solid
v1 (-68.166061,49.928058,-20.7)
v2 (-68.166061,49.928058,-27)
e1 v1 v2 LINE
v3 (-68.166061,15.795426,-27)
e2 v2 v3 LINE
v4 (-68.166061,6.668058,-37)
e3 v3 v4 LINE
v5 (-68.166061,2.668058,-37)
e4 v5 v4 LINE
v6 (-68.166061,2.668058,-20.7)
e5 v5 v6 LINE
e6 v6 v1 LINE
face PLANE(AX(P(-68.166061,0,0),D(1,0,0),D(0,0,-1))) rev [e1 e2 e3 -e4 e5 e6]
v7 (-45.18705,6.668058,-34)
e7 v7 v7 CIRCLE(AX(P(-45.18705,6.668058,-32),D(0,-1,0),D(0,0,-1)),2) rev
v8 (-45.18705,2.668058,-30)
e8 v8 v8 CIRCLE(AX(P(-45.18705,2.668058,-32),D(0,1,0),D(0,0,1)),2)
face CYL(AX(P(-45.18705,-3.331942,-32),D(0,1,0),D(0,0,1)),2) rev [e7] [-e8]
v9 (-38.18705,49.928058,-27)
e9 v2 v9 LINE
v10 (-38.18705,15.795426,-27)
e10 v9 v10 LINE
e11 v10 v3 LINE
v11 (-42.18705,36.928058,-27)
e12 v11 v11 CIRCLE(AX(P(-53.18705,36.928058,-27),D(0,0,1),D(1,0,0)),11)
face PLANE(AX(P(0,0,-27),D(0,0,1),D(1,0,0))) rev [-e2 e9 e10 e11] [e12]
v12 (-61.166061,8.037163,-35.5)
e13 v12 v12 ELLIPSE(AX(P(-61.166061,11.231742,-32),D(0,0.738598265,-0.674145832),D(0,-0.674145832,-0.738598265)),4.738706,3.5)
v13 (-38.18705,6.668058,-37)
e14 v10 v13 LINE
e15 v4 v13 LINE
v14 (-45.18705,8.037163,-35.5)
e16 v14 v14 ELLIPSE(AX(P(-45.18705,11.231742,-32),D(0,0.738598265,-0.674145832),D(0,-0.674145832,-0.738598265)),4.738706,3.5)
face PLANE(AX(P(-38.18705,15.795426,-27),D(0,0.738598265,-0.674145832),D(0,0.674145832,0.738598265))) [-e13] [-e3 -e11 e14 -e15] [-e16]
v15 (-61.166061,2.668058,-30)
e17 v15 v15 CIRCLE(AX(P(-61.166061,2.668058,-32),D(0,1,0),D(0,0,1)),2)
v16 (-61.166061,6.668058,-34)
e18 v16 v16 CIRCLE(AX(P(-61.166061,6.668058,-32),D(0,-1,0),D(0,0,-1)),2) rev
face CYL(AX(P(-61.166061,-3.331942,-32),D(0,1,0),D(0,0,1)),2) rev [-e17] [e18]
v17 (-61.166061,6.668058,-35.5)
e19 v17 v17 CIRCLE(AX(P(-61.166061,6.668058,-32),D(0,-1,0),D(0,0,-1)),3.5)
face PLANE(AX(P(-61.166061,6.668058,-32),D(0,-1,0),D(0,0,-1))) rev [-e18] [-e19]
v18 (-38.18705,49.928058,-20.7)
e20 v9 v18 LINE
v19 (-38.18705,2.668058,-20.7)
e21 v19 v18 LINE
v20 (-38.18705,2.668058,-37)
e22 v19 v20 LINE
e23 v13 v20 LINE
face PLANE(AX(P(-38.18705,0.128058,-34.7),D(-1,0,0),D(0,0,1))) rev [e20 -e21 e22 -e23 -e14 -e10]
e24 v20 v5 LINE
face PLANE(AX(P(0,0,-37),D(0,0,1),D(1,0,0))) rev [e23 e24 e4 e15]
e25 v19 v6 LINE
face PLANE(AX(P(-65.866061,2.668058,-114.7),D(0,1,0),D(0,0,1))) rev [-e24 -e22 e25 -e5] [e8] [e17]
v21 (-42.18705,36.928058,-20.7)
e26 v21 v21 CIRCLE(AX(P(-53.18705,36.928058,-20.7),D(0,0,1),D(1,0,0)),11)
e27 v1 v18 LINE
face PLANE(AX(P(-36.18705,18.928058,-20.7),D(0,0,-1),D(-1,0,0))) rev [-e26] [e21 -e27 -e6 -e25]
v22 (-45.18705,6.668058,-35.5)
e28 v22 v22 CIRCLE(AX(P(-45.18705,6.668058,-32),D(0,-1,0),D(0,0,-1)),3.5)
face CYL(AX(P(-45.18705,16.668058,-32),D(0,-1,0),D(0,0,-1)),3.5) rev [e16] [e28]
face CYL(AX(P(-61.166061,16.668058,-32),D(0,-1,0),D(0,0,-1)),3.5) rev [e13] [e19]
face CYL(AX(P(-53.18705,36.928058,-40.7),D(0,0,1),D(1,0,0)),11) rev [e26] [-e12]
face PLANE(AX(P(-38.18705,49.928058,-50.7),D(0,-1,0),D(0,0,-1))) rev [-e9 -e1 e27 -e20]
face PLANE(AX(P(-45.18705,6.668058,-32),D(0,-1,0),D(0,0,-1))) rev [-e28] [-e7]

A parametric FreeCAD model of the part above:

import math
import FreeCAD as App
import Part
import Sketcher

V = App.Vector
Q = App.Units.Quantity

doc = App.newDocument("Part")
body = doc.addObject("PartDesign::Body", "Body")

sketch1 = body.newObject("Sketcher::SketchObject", "Sketch")
sketch1.AttachmentSupport = (doc.getObject("XY_Plane"), [""])
sketch1.MapMode = "FlatFace"
sketch1.addGeometry([
    Part.LineSegment(V(-76, 65, 0), V(-76, -35, 0)),
    Part.LineSegment(V(-76, -35, 0), V(17, -35, 0)),
    Part.LineSegment(V(17, -35, 0), V(17, 65, 0)),
    Part.LineSegment(V(17, 65, 0), V(-76, 65, 0)),
], False)
sketch1.addConstraint([
    Sketcher.Constraint("Coincident", 0, 2, 1, 1),
    Sketcher.Constraint("Coincident", 1, 2, 2, 1),
    Sketcher.Constraint("Coincident", 2, 2, 3, 1),
    Sketcher.Constraint("Coincident", 3, 2, 0, 1),
    Sketcher.Constraint("Vertical", 0),
    Sketcher.Constraint("Horizontal", 1),
    Sketcher.Constraint("Vertical", 2),
    Sketcher.Constraint("Horizontal", 3),
    Sketcher.Constraint("DistanceX", 1, 1, 1, 2, Q("93 mm")),
    Sketcher.Constraint("DistanceY", 0, 2, 0, 1, Q("100 mm")),
    Sketcher.Constraint("DistanceX", 0, 2, -1, 1, Q("76.18705 mm")),
    Sketcher.Constraint("DistanceY", 0, 2, -1, 1, Q("35.071942 mm")),
])
pad1 = body.newObject("PartDesign::Pad", "Pad")
pad1.Profile = sketch1
pad1.Length = 10

sketch2 = body.newObject("Sketcher::SketchObject", "Sketch001")
sketch2.AttachmentSupport = (doc.getObject("YZ_Plane"), [""])
sketch2.MapMode = "FlatFace"
sketch2.AttachmentOffset = App.Placement(V(0, 0, 16.81295), App.Rotation())
sketch2.addGeometry([
    Part.LineSegment(V(-5, 10, 0), V(-20, 10, 0)),
    Part.LineSegment(V(-20, 10, 0), V(-20, 0, 0)),
    Part.LineSegment(V(-20, 0, 0), V(-5, 0, 0)),
    Part.LineSegment(V(-5, 0, 0), V(-5, 10, 0)),
], False)
sketch2.addConstraint([
    Sketcher.Constraint("Coincident", 0, 2, 1, 1),
    Sketcher.Constraint("Coincident", 1, 2, 2, 1),
    Sketcher.Constraint("Coincident", 2, 2, 3, 1),
    Sketcher.Constraint("Coincident", 3, 2, 0, 1),
    Sketcher.Constraint("Horizontal", 0),
    Sketcher.Constraint("Vertical", 1),
    Sketcher.Constraint("Horizontal", 2),
    Sketcher.Constraint("Vertical", 3),
    Sketcher.Constraint("DistanceX", 0, 2, 0, 1, Q("15 mm")),
    Sketcher.Constraint("DistanceY", -1, 1, 0, 2, Q("10 mm")),
    Sketcher.Constraint("DistanceY", 1, 2, 1, 1, Q("10.01 mm")),
    Sketcher.Constraint("DistanceX", 0, 2, -1, 1, Q("20.071942 mm")),
])
pad2 = body.newObject("PartDesign::Pad", "Pad001")
pad2.Profile = sketch2
pad2.Length = 24

sketch3 = body.newObject("Sketcher::SketchObject", "Sketch002")
sketch3.AttachmentSupport = (doc.getObject("XZ_Plane"), [""])
sketch3.MapMode = "FlatFace"
sketch3.AttachmentOffset = App.Placement(V(0, 0, 5.071942), App.Rotation())
sketch3.addGeometry(Part.Circle(V(26.8, 5, 0), V(0, 0, 1), 2), False)
sketch3.addConstraint([
    Sketcher.Constraint("Diameter", 0, Q("4 mm")),
    Sketcher.Constraint("DistanceY", -1, 1, 0, 3, Q("5 mm")),
    Sketcher.Constraint("DistanceX", -1, 1, 0, 3, Q("26.81295 mm")),
])
pocket1 = body.newObject("PartDesign::Pocket", "Pocket")
pocket1.Profile = sketch3
pocket1.Length = 50
pocket1.Reversed = True

sketch4 = body.newObject("Sketcher::SketchObject", "Sketch003")
sketch4.AttachmentSupport = (doc.getObject("XY_Plane"), [""])
sketch4.MapMode = "FlatFace"
sketch4.addGeometry(Part.Circle(V(-24, 37, 0), V(0, 0, 1), 11), False)
sketch4.addConstraint([
    Sketcher.Constraint("Diameter", 0, Q("22 mm")),
    Sketcher.Constraint("DistanceX", 0, 3, -1, 1, Q("24.18705 mm")),
    Sketcher.Constraint("DistanceY", -1, 1, 0, 3, Q("36.928058 mm")),
])
pocket2 = body.newObject("PartDesign::Pocket", "Pocket001")
pocket2.Profile = sketch4
pocket2.Length = 50
pocket2.Reversed = True

sketch5 = body.newObject("Sketcher::SketchObject", "Sketch004")
sketch5.AttachmentSupport = (doc.getObject("XY_Plane"), [""])
sketch5.MapMode = "FlatFace"
sketch5.AttachmentOffset = App.Placement(V(0, 0, 10), App.Rotation())
sketch5.addGeometry([
    Part.LineSegment(V(-45, 58, 0), V(-45, 16, 0)),
    Part.LineSegment(V(-45, 16, 0), V(17, 16, 0)),
    Part.LineSegment(V(17, 16, 0), V(17, 58, 0)),
    Part.LineSegment(V(17, 58, 0), V(-45, 58, 0)),
], False)
sketch5.addConstraint([
    Sketcher.Constraint("Coincident", 0, 2, 1, 1),
    Sketcher.Constraint("Coincident", 1, 2, 2, 1),
    Sketcher.Constraint("Coincident", 2, 2, 3, 1),
    Sketcher.Constraint("Coincident", 3, 2, 0, 1),
    Sketcher.Constraint("Vertical", 0),
    Sketcher.Constraint("Horizontal", 1),
    Sketcher.Constraint("Vertical", 2),
    Sketcher.Constraint("Horizontal", 3),
    Sketcher.Constraint("DistanceY", 0, 2, 0, 1, Q("42 mm")),
    Sketcher.Constraint("DistanceX", 1, 1, 1, 2, Q("61.5 mm")),
    Sketcher.Constraint("DistanceX", 0, 2, -1, 1, Q("44.68705 mm")),
    Sketcher.Constraint("DistanceY", -1, 1, 0, 2, Q("15.789132 mm")),
])
pocket3 = body.newObject("PartDesign::Pocket", "Pocket002")
pocket3.Profile = sketch5
pocket3.Length = 4

sketch6 = body.newObject("Sketcher::SketchObject", "Sketch005")
sketch6.AttachmentSupport = (doc.getObject("XY_Plane"), [""])
sketch6.MapMode = "FlatFace"
sketch6.addGeometry(Part.Circle(V(-53, 37, 0), V(0, 0, 1), 11), False)
sketch6.addConstraint([
    Sketcher.Constraint("Diameter", 0, Q("22 mm")),
    Sketcher.Constraint("DistanceX", 0, 3, -1, 1, Q("53.18705 mm")),
    Sketcher.Constraint("DistanceY", -1, 1, 0, 3, Q("36.928058 mm")),
])
pocket4 = body.newObject("PartDesign::Pocket", "Pocket003")
pocket4.Profile = sketch6
pocket4.Length = 15
pocket4.Reversed = True

sketch7 = body.newObject("Sketcher::SketchObject", "Sketch006")
sketch7.AttachmentSupport = (doc.getObject("XY_Plane"), [""])
sketch7.MapMode = "FlatFace"
sketch7.AttachmentOffset = App.Placement(V(0, 0, 6), App.Rotation())
sketch7.addGeometry([
    Part.Circle(V(-34.7, 50.9, 0), V(0, 0, 1), 2),
    Part.Circle(V(5.3, 50.9, 0), V(0, 0, 1), 2),
    Part.Circle(V(-34.7, 22.9, 0), V(0, 0, 1), 2),
    Part.Circle(V(5.3, 22.9, 0), V(0, 0, 1), 2),
], False)
sketch7.addConstraint([
    Sketcher.Constraint("Equal", 0, 1),
    Sketcher.Constraint("Equal", 1, 2),
    Sketcher.Constraint("Equal", 2, 3),
    Sketcher.Constraint("Horizontal", 0, 3, 1, 3),
    Sketcher.Constraint("Horizontal", 2, 3, 3, 3),
    Sketcher.Constraint("Vertical", 0, 3, 2, 3),
    Sketcher.Constraint("Vertical", 1, 3, 3, 3),
    Sketcher.Constraint("Diameter", 0, Q("4 mm")),
    Sketcher.Constraint("DistanceX", 0, 3, 1, 3, Q("40 mm")),
    Sketcher.Constraint("DistanceY", 2, 3, 0, 3, Q("28 mm")),
    Sketcher.Constraint("DistanceX", 0, 3, -1, 1, Q("34.68705 mm")),
    Sketcher.Constraint("DistanceY", -1, 1, 0, 3, Q("50.928058 mm")),
])
pocket5 = body.newObject("PartDesign::Pocket", "Pocket004")
pocket5.Profile = sketch7
pocket5.Length = 10

sketch8 = body.newObject("Sketcher::SketchObject", "Sketch007")
sketch8.AttachmentSupport = (doc.getObject("XY_Plane"), [""])
sketch8.MapMode = "FlatFace"
sketch8.addGeometry([
    Part.LineSegment(V(-36, 65, 0), V(-36, 59, 0)),
    Part.LineSegment(V(-36, 59, 0), V(-76, 59, 0)),
    Part.LineSegment(V(-76, 59, 0), V(-76, 65, 0)),
    Part.LineSegment(V(-76, 65, 0), V(-36, 65, 0)),
], False)
sketch8.addConstraint([
    Sketcher.Constraint("Coincident", 0, 2, 1, 1),
    Sketcher.Constraint("Coincident", 1, 2, 2, 1),
    Sketcher.Constraint("Coincident", 2, 2, 3, 1),
    Sketcher.Constraint("Coincident", 3, 2, 0, 1),
    Sketcher.Constraint("Vertical", 0),
    Sketcher.Constraint("Horizontal", 1),
    Sketcher.Constraint("Vertical", 2),
    Sketcher.Constraint("Horizontal", 3),
    Sketcher.Constraint("DistanceX", 1, 2, 1, 1, Q("40 mm")),
    Sketcher.Constraint("DistanceY", 0, 2, 0, 1, Q("6 mm")),
    Sketcher.Constraint("DistanceX", 0, 2, -1, 1, Q("36.18705 mm")),
    Sketcher.Constraint("DistanceY", -1, 1, 0, 2, Q("58.928058 mm")),
])
pad3 = body.newObject("PartDesign::Pad", "Pad002")
pad3.Profile = sketch8
pad3.Length = 27
pad3.Reversed = True

sketch9 = body.newObject("Sketcher::SketchObject", "Sketch008")
sketch9.AttachmentSupport = (doc.getObject("XZ_Plane"), [""])
sketch9.MapMode = "FlatFace"
sketch9.AttachmentOffset = App.Placement(V(0, 0, -58.928058), App.Rotation())
sketch9.addGeometry([
    Part.LineSegment(V(-76, -21, 0), V(-76, -27, 0)),
    Part.LineSegment(V(-76, -27, 0), V(-36, -27, 0)),
    Part.LineSegment(V(-36, -27, 0), V(-36, -21, 0)),
    Part.LineSegment(V(-36, -21, 0), V(-76, -21, 0)),
], False)
sketch9.addConstraint([
    Sketcher.Constraint("Coincident", 0, 2, 1, 1),
    Sketcher.Constraint("Coincident", 1, 2, 2, 1),
    Sketcher.Constraint("Coincident", 2, 2, 3, 1),
    Sketcher.Constraint("Coincident", 3, 2, 0, 1),
    Sketcher.Constraint("Vertical", 0),
    Sketcher.Constraint("Horizontal", 1),
    Sketcher.Constraint("Vertical", 2),
    Sketcher.Constraint("Horizontal", 3),
    Sketcher.Constraint("DistanceX", 1, 1, 1, 2, Q("40 mm")),
    Sketcher.Constraint("DistanceY", 0, 2, 0, 1, Q("6.3 mm")),
    Sketcher.Constraint("DistanceY", 0, 2, -1, 1, Q("27 mm")),
    Sketcher.Constraint("DistanceX", 0, 2, -1, 1, Q("76.18705 mm")),
])
pad4 = body.newObject("PartDesign::Pad", "Pad003")
pad4.Profile = sketch9
pad4.Length = 40

sketch10 = body.newObject("Sketcher::SketchObject", "Sketch009")
sketch10.AttachmentSupport = (doc.getObject("XY_Plane"), [""])
sketch10.MapMode = "FlatFace"
sketch10.AttachmentOffset = App.Placement(V(0, 0, 10), App.Rotation())
sketch10.addGeometry(Part.Circle(V(-53, 37, 0), V(0, 0, 1), 8), False)
sketch10.addConstraint([
    Sketcher.Constraint("Diameter", 0, Q("16 mm")),
    Sketcher.Constraint("DistanceX", 0, 3, -1, 1, Q("53.18705 mm")),
    Sketcher.Constraint("DistanceY", -1, 1, 0, 3, Q("36.928058 mm")),
])
pocket6 = body.newObject("PartDesign::Pocket", "Pocket005")
pocket6.Profile = sketch10
pocket6.Length = 40

sketch11 = body.newObject("Sketcher::SketchObject", "Sketch010")
sketch11.AttachmentSupport = (doc.getObject("XY_Plane"), [""])
sketch11.MapMode = "FlatFace"
sketch11.AttachmentOffset = App.Placement(V(0, 0, 10), App.Rotation())
sketch11.addGeometry([
    Part.LineSegment(V(-76, 7, 0), V(-76, -35, 0)),
    Part.LineSegment(V(-76, -35, 0), V(42, -35, 0)),
    Part.LineSegment(V(42, -35, 0), V(42, 7, 0)),
    Part.LineSegment(V(42, 7, 0), V(-76, 7, 0)),
], False)
sketch11.addConstraint([
    Sketcher.Constraint("Coincident", 0, 2, 1, 1),
    Sketcher.Constraint("Coincident", 1, 2, 2, 1),
    Sketcher.Constraint("Coincident", 2, 2, 3, 1),
    Sketcher.Constraint("Coincident", 3, 2, 0, 1),
    Sketcher.Constraint("Vertical", 0),
    Sketcher.Constraint("Horizontal", 1),
    Sketcher.Constraint("Vertical", 2),
    Sketcher.Constraint("Horizontal", 3),
    Sketcher.Constraint("DistanceY", 0, 2, 0, 1, Q("41.8 mm")),
    Sketcher.Constraint("DistanceX", 1, 1, 1, 2, Q("118.277818 mm")),
    Sketcher.Constraint("DistanceX", 0, 2, -1, 1, Q("76.18705 mm")),
    Sketcher.Constraint("DistanceY", 0, 2, -1, 1, Q("35.071942 mm")),
])
pocket7 = body.newObject("PartDesign::Pocket", "Pocket006")
pocket7.Profile = sketch11
pocket7.Length = 40

sketch12 = body.newObject("Sketcher::SketchObject", "Sketch011")
sketch12.AttachmentSupport = (doc.getObject("XY_Plane"), [""])
sketch12.MapMode = "FlatFace"
sketch12.AttachmentOffset = App.Placement(V(0, 0, 10), App.Rotation())
sketch12.addGeometry([
    Part.LineSegment(V(-76, 30, 0), V(-76, 7, 0)),
    Part.LineSegment(V(-76, 7, 0), V(-45, 7, 0)),
    Part.LineSegment(V(-45, 7, 0), V(-45, 30, 0)),
    Part.LineSegment(V(-45, 30, 0), V(-76, 30, 0)),
], False)
sketch12.addConstraint([
    Sketcher.Constraint("Coincident", 0, 2, 1, 1),
    Sketcher.Constraint("Coincident", 1, 2, 2, 1),
    Sketcher.Constraint("Coincident", 2, 2, 3, 1),
    Sketcher.Constraint("Coincident", 3, 2, 0, 1),
    Sketcher.Constraint("Vertical", 0),
    Sketcher.Constraint("Horizontal", 1),
    Sketcher.Constraint("Vertical", 2),
    Sketcher.Constraint("Horizontal", 3),
    Sketcher.Constraint("DistanceX", 1, 1, 1, 2, Q("31.5 mm")),
    Sketcher.Constraint("DistanceY", 0, 2, 0, 1, Q("23.2 mm")),
    Sketcher.Constraint("DistanceX", 0, 2, -1, 1, Q("76.18705 mm")),
    Sketcher.Constraint("DistanceY", -1, 1, 0, 2, Q("6.728058 mm")),
])
pocket8 = body.newObject("PartDesign::Pocket", "Pocket007")
pocket8.Profile = sketch12
pocket8.Length = 20

sketch13 = body.newObject("Sketcher::SketchObject", "Sketch012")
sketch13.AttachmentSupport = (doc.getObject("XY_Plane"), [""])
sketch13.MapMode = "FlatFace"
sketch13.AttachmentOffset = App.Placement(V(0, 0, 6), App.Rotation())
sketch13.addGeometry([
    Part.LineSegment(V(14.3, 57.8, 0), V(6.9, 57.8, 0)),
    Part.LineSegment(V(6.9, 57.8, 0), V(6.9, 54.6, 0)),
    Part.ArcOfCircle(Part.Circle(V(5.3, 50.9, 0), V(0, 0, 1), 4), math.radians(18), math.radians(67)),
    Part.LineSegment(V(9.1, 52.2, 0), V(14.3, 52.2, 0)),
    Part.LineSegment(V(14.3, 52.2, 0), V(14.3, 57.8, 0)),
    Part.LineSegment(V(6.9, 19.2, 0), V(6.9, 15.8, 0)),
    Part.LineSegment(V(6.9, 15.8, 0), V(14.3, 15.8, 0)),
    Part.LineSegment(V(14.3, 15.8, 0), V(14.3, 20.9, 0)),
    Part.LineSegment(V(14.3, 20.9, 0), V(8.8, 20.9, 0)),
    Part.ArcOfCircle(Part.Circle(V(5.3, 22.9, 0), V(0, 0, 1), 4), math.radians(-67), math.radians(-30)),
    Part.LineSegment(V(-36.2, 57.8, 0), V(-44.7, 57.8, 0)),
    Part.LineSegment(V(-44.7, 57.8, 0), V(-44.7, 52.2, 0)),
    Part.LineSegment(V(-44.7, 52.2, 0), V(-38.5, 52.2, 0)),
    Part.ArcOfCircle(Part.Circle(V(-34.7, 50.9, 0), V(0, 0, 1), 4), math.radians(113), math.radians(162)),
    Part.LineSegment(V(-36.2, 54.6, 0), V(-36.2, 57.8, 0)),
    Part.LineSegment(V(-44.7, 21.7, 0), V(-44.7, 15.8, 0)),
    Part.LineSegment(V(-44.7, 15.8, 0), V(-36.2, 15.8, 0)),
    Part.LineSegment(V(-36.2, 15.8, 0), V(-36.2, 19.2, 0)),
    Part.ArcOfCircle(Part.Circle(V(-34.7, 22.9, 0), V(0, 0, 1), 4), math.radians(-162), math.radians(-113)),
    Part.LineSegment(V(-38.5, 21.7, 0), V(-44.7, 21.7, 0)),
], False)
sketch13.addConstraint([
    Sketcher.Constraint("Coincident", 0, 2, 1, 1),
    Sketcher.Constraint("Coincident", 1, 2, 2, 2),
    Sketcher.Constraint("Coincident", 2, 1, 3, 1),
    Sketcher.Constraint("Coincident", 3, 2, 4, 1),
    Sketcher.Constraint("Coincident", 4, 2, 0, 1),
    Sketcher.Constraint("Coincident", 5, 2, 6, 1),
    Sketcher.Constraint("Coincident", 6, 2, 7, 1),
    Sketcher.Constraint("Coincident", 7, 2, 8, 1),
    Sketcher.Constraint("Coincident", 8, 2, 9, 2),
    Sketcher.Constraint("Coincident", 9, 1, 5, 1),
    Sketcher.Constraint("Coincident", 10, 2, 11, 1),
    Sketcher.Constraint("Coincident", 11, 2, 12, 1),
    Sketcher.Constraint("Coincident", 12, 2, 13, 2),
    Sketcher.Constraint("Coincident", 13, 1, 14, 1),
    Sketcher.Constraint("Coincident", 14, 2, 10, 1),
    Sketcher.Constraint("Coincident", 15, 2, 16, 1),
    Sketcher.Constraint("Coincident", 16, 2, 17, 1),
    Sketcher.Constraint("Coincident", 17, 2, 18, 2),
    Sketcher.Constraint("Coincident", 18, 1, 19, 1),
    Sketcher.Constraint("Coincident", 19, 2, 15, 1),
    Sketcher.Constraint("Horizontal", 0),
    Sketcher.Constraint("Vertical", 1),
    Sketcher.Constraint("Horizontal", 3),
    Sketcher.Constraint("Vertical", 4),
    Sketcher.Constraint("Vertical", 5),
    Sketcher.Constraint("Horizontal", 6),
    Sketcher.Constraint("Vertical", 7),
    Sketcher.Constraint("Horizontal", 8),
    Sketcher.Constraint("Horizontal", 10),
    Sketcher.Constraint("Vertical", 11),
    Sketcher.Constraint("Horizontal", 12),
    Sketcher.Constraint("Vertical", 14),
    Sketcher.Constraint("Vertical", 15),
    Sketcher.Constraint("Horizontal", 16),
    Sketcher.Constraint("Vertical", 17),
    Sketcher.Constraint("Horizontal", 19),
    Sketcher.Constraint("Equal", 2, 9),
    Sketcher.Constraint("Equal", 9, 13),
    Sketcher.Constraint("Equal", 13, 18),
    Sketcher.Constraint("Horizontal", 2, 3, 13, 3),
    Sketcher.Constraint("Horizontal", 9, 3, 18, 3),
    Sketcher.Constraint("Horizontal", 4, 2, 10, 2),
    Sketcher.Constraint("Horizontal", 3, 2, 11, 2),
    Sketcher.Constraint("Horizontal", 1, 2, 13, 1),
    Sketcher.Constraint("Horizontal", 6, 2, 15, 2),
    Sketcher.Constraint("Horizontal", 9, 1, 17, 2),
    Sketcher.Constraint("Vertical", 2, 3, 9, 3),
    Sketcher.Constraint("Vertical", 13, 3, 18, 3),
    Sketcher.Constraint("Vertical", 1, 2, 5, 2),
    Sketcher.Constraint("Vertical", 4, 2, 6, 2),
    Sketcher.Constraint("Vertical", 11, 2, 15, 2),
    Sketcher.Constraint("Vertical", 12, 2, 18, 1),
    Sketcher.Constraint("Radius", 2, Q("4 mm")),
    Sketcher.Constraint("DistanceY", 9, 3, 2, 3, Q("28 mm")),
    Sketcher.Constraint("DistanceX", 13, 3, 2, 3, Q("40 mm")),
    Sketcher.Constraint("DistanceY", 7, 2, 9, 3, Q("2 mm")),
    Sketcher.Constraint("DistanceX", 10, 2, 13, 3, Q("10 mm")),
    Sketcher.Constraint("DistanceX", 8, 2, 8, 1, Q("5.525072 mm")),
    Sketcher.Constraint("DistanceX", 10, 2, 10, 1, Q("8.449551 mm")),
    Sketcher.Constraint("DistanceX", -1, 1, 0, 2, Q("6.863399 mm")),
    Sketcher.Constraint("DistanceX", 3, 1, 3, 2, Q("5.193927 mm")),
    Sketcher.Constraint("DistanceY", 1, 2, 1, 1, Q("3.173785 mm")),
    Sketcher.Constraint("DistanceY", 5, 2, 5, 1, Q("3.451635 mm")),
    Sketcher.Constraint("DistanceY", -1, 1, 2, 1, Q("52.191429 mm")),
])
pocket9 = body.newObject("PartDesign::Pocket", "Pocket008")
pocket9.Profile = sketch13
pocket9.Length = 3

sketch14 = body.newObject("Sketcher::SketchObject", "Sketch013")
sketch14.AttachmentSupport = (doc.getObject("XY_Plane"), [""])
sketch14.MapMode = "FlatFace"
sketch14.AttachmentOffset = App.Placement(V(0, 0, 6), App.Rotation())
sketch14.addGeometry([
    Part.Circle(V(5.3, 50.9, 0), V(0, 0, 1), 4.1),
    Part.Circle(V(5.3, 22.9, 0), V(0, 0, 1), 4),
    Part.Circle(V(-34.7, 50.9, 0), V(0, 0, 1), 4.1),
    Part.Circle(V(-34.7, 22.9, 0), V(0, 0, 1), 4.1),
], False)
sketch14.addConstraint([
    Sketcher.Constraint("Equal", 0, 2),
    Sketcher.Constraint("Equal", 2, 3),
    Sketcher.Constraint("Horizontal", 0, 3, 2, 3),
    Sketcher.Constraint("Horizontal", 1, 3, 3, 3),
    Sketcher.Constraint("Vertical", 0, 3, 1, 3),
    Sketcher.Constraint("Vertical", 2, 3, 3, 3),
    Sketcher.Constraint("Diameter", 1, Q("8 mm")),
    Sketcher.Constraint("Diameter", 0, Q("8.2 mm")),
    Sketcher.Constraint("DistanceY", 1, 3, 0, 3, Q("28 mm")),
    Sketcher.Constraint("DistanceX", 2, 3, 0, 3, Q("40 mm")),
    Sketcher.Constraint("DistanceX", -1, 1, 0, 3, Q("5.31295 mm")),
    Sketcher.Constraint("DistanceY", -1, 1, 0, 3, Q("50.928058 mm")),
])
pocket10 = body.newObject("PartDesign::Pocket", "Pocket009")
pocket10.Profile = sketch14
pocket10.Length = 3

sketch15 = body.newObject("Sketcher::SketchObject", "Sketch014")
sketch15.AttachmentSupport = (doc.getObject("XY_Plane"), [""])
sketch15.MapMode = "FlatFace"
sketch15.addGeometry([
    Part.LineSegment(V(17, 65, 0), V(17, 7, 0)),
    Part.LineSegment(V(17, 7, 0), V(-13, 7, 0)),
    Part.LineSegment(V(-13, 7, 0), V(-13, 65, 0)),
    Part.LineSegment(V(-13, 65, 0), V(17, 65, 0)),
], False)
sketch15.addConstraint([
    Sketcher.Constraint("Coincident", 0, 2, 1, 1),
    Sketcher.Constraint("Coincident", 1, 2, 2, 1),
    Sketcher.Constraint("Coincident", 2, 2, 3, 1),
    Sketcher.Constraint("Coincident", 3, 2, 0, 1),
    Sketcher.Constraint("Vertical", 0),
    Sketcher.Constraint("Horizontal", 1),
    Sketcher.Constraint("Vertical", 2),
    Sketcher.Constraint("Horizontal", 3),
    Sketcher.Constraint("DistanceX", 1, 2, 1, 1, Q("29.5 mm")),
    Sketcher.Constraint("DistanceY", 0, 2, 0, 1, Q("58.2 mm")),
    Sketcher.Constraint("DistanceX", -1, 1, 0, 2, Q("16.81295 mm")),
    Sketcher.Constraint("DistanceY", -1, 1, 0, 2, Q("6.728058 mm")),
])
pocket11 = body.newObject("PartDesign::Pocket", "Pocket010")
pocket11.Profile = sketch15
pocket11.Length = 23
pocket11.Reversed = True

sketch16 = body.newObject("Sketcher::SketchObject", "Sketch015")
sketch16.AttachmentSupport = (doc.getObject("XZ_Plane"), [""])
sketch16.MapMode = "FlatFace"
sketch16.AttachmentOffset = App.Placement(V(0, 0, -15.789132), App.Rotation())
sketch16.addGeometry([
    Part.LineSegment(V(-44.7, 6, 0), V(-44.7, 10, 0)),
    Part.LineSegment(V(-44.7, 10, 0), V(-12.7, 10, 0)),
    Part.LineSegment(V(-12.7, 10, 0), V(-12.7, 6, 0)),
    Part.LineSegment(V(-12.7, 6, 0), V(-44.7, 6, 0)),
], False)
sketch16.addConstraint([
    Sketcher.Constraint("Coincident", 0, 2, 1, 1),
    Sketcher.Constraint("Coincident", 1, 2, 2, 1),
    Sketcher.Constraint("Coincident", 2, 2, 3, 1),
    Sketcher.Constraint("Coincident", 3, 2, 0, 1),
    Sketcher.Constraint("Vertical", 0),
    Sketcher.Constraint("Horizontal", 1),
    Sketcher.Constraint("Vertical", 2),
    Sketcher.Constraint("Horizontal", 3),
    Sketcher.Constraint("DistanceX", 1, 1, 1, 2, Q("32 mm")),
    Sketcher.Constraint("DistanceY", 0, 1, 0, 2, Q("4 mm")),
    Sketcher.Constraint("DistanceY", -1, 1, 0, 2, Q("10 mm")),
    Sketcher.Constraint("DistanceX", 0, 2, -1, 1, Q("44.68705 mm")),
])
pocket12 = body.newObject("PartDesign::Pocket", "Pocket011")
pocket12.Profile = sketch16
pocket12.Length = 23
pocket12.Reversed = True

sketch17 = body.newObject("Sketcher::SketchObject", "Sketch016")
sketch17.AttachmentSupport = (doc.getObject("XZ_Plane"), [""])
sketch17.MapMode = "FlatFace"
sketch17.AttachmentOffset = App.Placement(V(0, 0, -6.728058), App.Rotation())
sketch17.addGeometry([
    Part.LineSegment(V(-45, 6, 0), V(-45, 0, 0)),
    Part.LineSegment(V(-45, 0, 0), V(-13, 0, 0)),
    Part.LineSegment(V(-13, 0, 0), V(-13, 6, 0)),
    Part.LineSegment(V(-13, 6, 0), V(-45, 6, 0)),
], False)
sketch17.addConstraint([
    Sketcher.Constraint("Coincident", 0, 2, 1, 1),
    Sketcher.Constraint("Coincident", 1, 2, 2, 1),
    Sketcher.Constraint("Coincident", 2, 2, 3, 1),
    Sketcher.Constraint("Coincident", 3, 2, 0, 1),
    Sketcher.Constraint("Vertical", 0),
    Sketcher.Constraint("Horizontal", 1),
    Sketcher.Constraint("Vertical", 2),
    Sketcher.Constraint("Horizontal", 3),
    Sketcher.Constraint("PointOnObject", 0, 2, -1),
    Sketcher.Constraint("DistanceX", 1, 1, 1, 2, Q("32 mm")),
    Sketcher.Constraint("DistanceY", 0, 2, 0, 1, Q("6 mm")),
    Sketcher.Constraint("DistanceX", 0, 2, -1, 1, Q("44.68705 mm")),
])
pad5 = body.newObject("PartDesign::Pad", "Pad004")
pad5.Profile = sketch17
pad5.Length = 6.6

sketch18 = body.newObject("Sketcher::SketchObject", "Sketch017")
sketch18.AttachmentSupport = (doc.getObject("XY_Plane"), [""])
sketch18.MapMode = "FlatFace"
sketch18.AttachmentOffset = App.Placement(V(0, 0, 6), App.Rotation())
sketch18.addGeometry([
    Part.LineSegment(V(-45, 6, 0), V(-45, 0, 0)),
    Part.LineSegment(V(-45, 0, 0), V(-13, 0, 0)),
    Part.LineSegment(V(-13, 0, 0), V(-13, 6, 0)),
    Part.LineSegment(V(-13, 6, 0), V(-45, 6, 0)),
], False)
sketch18.addConstraint([
    Sketcher.Constraint("Coincident", 0, 2, 1, 1),
    Sketcher.Constraint("Coincident", 1, 2, 2, 1),
    Sketcher.Constraint("Coincident", 2, 2, 3, 1),
    Sketcher.Constraint("Coincident", 3, 2, 0, 1),
    Sketcher.Constraint("Vertical", 0),
    Sketcher.Constraint("Horizontal", 1),
    Sketcher.Constraint("Vertical", 2),
    Sketcher.Constraint("Horizontal", 3),
    Sketcher.Constraint("DistanceX", 1, 1, 1, 2, Q("32 mm")),
    Sketcher.Constraint("DistanceY", 0, 2, 0, 1, Q("6 mm")),
    Sketcher.Constraint("DistanceX", 0, 2, -1, 1, Q("44.68705 mm")),
    Sketcher.Constraint("DistanceY", -1, 1, 0, 2, Q("0.128058 mm")),
])
pad6 = body.newObject("PartDesign::Pad", "Pad005")
pad6.Profile = sketch18
pad6.Length = 10

sketch19 = body.newObject("Sketcher::SketchObject", "Sketch018")
sketch19.AttachmentSupport = (doc.getObject("XZ_Plane"), [""])
sketch19.MapMode = "FlatFace"
sketch19.AttachmentOffset = App.Placement(V(0, 0, -6.128058), App.Rotation())
sketch19.addGeometry([
    Part.Circle(V(-37.7, 11, 0), V(0, 0, 1), 2),
    Part.Circle(V(-19.7, 11, 0), V(0, 0, 1), 2),
], False)
sketch19.addConstraint([
    Sketcher.Constraint("Equal", 0, 1),
    Sketcher.Constraint("Horizontal", 0, 3, 1, 3),
    Sketcher.Constraint("Diameter", 0, Q("4 mm")),
    Sketcher.Constraint("DistanceY", -1, 1, 0, 3, Q("11 mm")),
    Sketcher.Constraint("DistanceX", 0, 3, 1, 3, Q("18 mm")),
    Sketcher.Constraint("DistanceX", 0, 3, -1, 1, Q("37.68705 mm")),
])
pocket13 = body.newObject("PartDesign::Pocket", "Pocket012")
pocket13.Profile = sketch19
pocket13.Length = 10
pocket13.Reversed = True

sketch20 = body.newObject("Sketcher::SketchObject", "Sketch019")
sketch20.AttachmentSupport = (doc.getObject("YZ_Plane"), [""])
sketch20.MapMode = "FlatFace"
sketch20.AttachmentOffset = App.Placement(V(0, 0, -44.68705), App.Rotation())
sketch20.addGeometry([
    Part.LineSegment(V(6, 16, 0), V(6, 6, 0)),
    Part.LineSegment(V(6, 6, 0), V(14, 6, 0)),
    Part.LineSegment(V(14, 6, 0), V(6, 16, 0)),
], False)
sketch20.addConstraint([
    Sketcher.Constraint("Coincident", 0, 2, 1, 1),
    Sketcher.Constraint("Coincident", 1, 2, 2, 1),
    Sketcher.Constraint("Coincident", 2, 2, 0, 1),
    Sketcher.Constraint("Vertical", 0),
    Sketcher.Constraint("Horizontal", 1),
    Sketcher.Constraint("DistanceY", 0, 2, 0, 1, Q("10 mm")),
    Sketcher.Constraint("DistanceY", -1, 1, 0, 2, Q("6 mm")),
    Sketcher.Constraint("DistanceX", 1, 1, 1, 2, Q("7.930303 mm")),
    Sketcher.Constraint("DistanceX", -1, 1, 1, 2, Q("14.05836 mm")),
])
pad7 = body.newObject("PartDesign::Pad", "Pad006")
pad7.Profile = sketch20
pad7.Length = 32

sketch21 = body.newObject("Sketcher::SketchObject", "Sketch020")
sketch21.AttachmentSupport = (doc.getObject("XZ_Plane"), [""])
sketch21.MapMode = "FlatFace"
sketch21.AttachmentOffset = App.Placement(V(0, 0, -6.128058), App.Rotation())
sketch21.addGeometry([
    Part.Circle(V(-19.7, 11, 0), V(0, 0, 1), 3.5),
    Part.Circle(V(-37.7, 11, 0), V(0, 0, 1), 3.5),
], False)
sketch21.addConstraint([
    Sketcher.Constraint("Equal", 0, 1),
    Sketcher.Constraint("Horizontal", 0, 3, 1, 3),
    Sketcher.Constraint("Diameter", 0, Q("7 mm")),
    Sketcher.Constraint("DistanceY", -1, 1, 0, 3, Q("11 mm")),
    Sketcher.Constraint("DistanceX", 1, 3, 0, 3, Q("18 mm")),
    Sketcher.Constraint("DistanceX", 0, 3, -1, 1, Q("19.68705 mm")),
])
pocket14 = body.newObject("PartDesign::Pocket", "Pocket013")
pocket14.Profile = sketch21
pocket14.Length = 10

sketch22 = body.newObject("Sketcher::SketchObject", "Sketch021")
sketch22.AttachmentSupport = (doc.getObject("XZ_Plane"), [""])
sketch22.MapMode = "FlatFace"
sketch22.AttachmentOffset = App.Placement(V(0, 0, -18.928058), App.Rotation())
sketch22.addGeometry([
    Part.LineSegment(V(-76, -21, 0), V(-76, -27, 0)),
    Part.LineSegment(V(-76, -27, 0), V(-36, -27, 0)),
    Part.LineSegment(V(-36, -27, 0), V(-36, -21, 0)),
    Part.LineSegment(V(-36, -21, 0), V(-76, -21, 0)),
], False)
sketch22.addConstraint([
    Sketcher.Constraint("Coincident", 0, 2, 1, 1),
    Sketcher.Constraint("Coincident", 1, 2, 2, 1),
    Sketcher.Constraint("Coincident", 2, 2, 3, 1),
    Sketcher.Constraint("Coincident", 3, 2, 0, 1),
    Sketcher.Constraint("Vertical", 0),
    Sketcher.Constraint("Horizontal", 1),
    Sketcher.Constraint("Vertical", 2),
    Sketcher.Constraint("Horizontal", 3),
    Sketcher.Constraint("DistanceX", 1, 1, 1, 2, Q("40 mm")),
    Sketcher.Constraint("DistanceY", 0, 2, 0, 1, Q("6.3 mm")),
    Sketcher.Constraint("DistanceY", 0, 2, -1, 1, Q("27 mm")),
    Sketcher.Constraint("DistanceX", 0, 2, -1, 1, Q("76.18705 mm")),
])
pad8 = body.newObject("PartDesign::Pad", "Pad007")
pad8.Profile = sketch22
pad8.Length = 18.8

sketch23 = body.newObject("Sketcher::SketchObject", "Sketch022")
sketch23.AttachmentSupport = (doc.getObject("XY_Plane"), [""])
sketch23.MapMode = "FlatFace"
sketch23.AttachmentOffset = App.Placement(V(0, 0, -20.7), App.Rotation())
sketch23.addGeometry([
    Part.LineSegment(V(-76, 6, 0), V(-76, 0, 0)),
    Part.LineSegment(V(-76, 0, 0), V(-36, 0, 0)),
    Part.LineSegment(V(-36, 0, 0), V(-36, 6, 0)),
    Part.LineSegment(V(-36, 6, 0), V(-76, 6, 0)),
], False)
sketch23.addConstraint([
    Sketcher.Constraint("Coincident", 0, 2, 1, 1),
    Sketcher.Constraint("Coincident", 1, 2, 2, 1),
    Sketcher.Constraint("Coincident", 2, 2, 3, 1),
    Sketcher.Constraint("Coincident", 3, 2, 0, 1),
    Sketcher.Constraint("Vertical", 0),
    Sketcher.Constraint("Horizontal", 1),
    Sketcher.Constraint("Vertical", 2),
    Sketcher.Constraint("Horizontal", 3),
    Sketcher.Constraint("DistanceX", 1, 1, 1, 2, Q("40 mm")),
    Sketcher.Constraint("DistanceY", 0, 2, 0, 1, Q("6 mm")),
    Sketcher.Constraint("DistanceX", 0, 2, -1, 1, Q("76.18705 mm")),
    Sketcher.Constraint("DistanceY", -1, 1, 0, 2, Q("0.128058 mm")),
])
pad9 = body.newObject("PartDesign::Pad", "Pad008")
pad9.Profile = sketch23
pad9.Length = 16

sketch24 = body.newObject("Sketcher::SketchObject", "Sketch023")
sketch24.AttachmentSupport = (doc.getObject("XZ_Plane"), [""])
sketch24.MapMode = "FlatFace"
sketch24.AttachmentOffset = App.Placement(V(0, 0, -6.128058), App.Rotation())
sketch24.addGeometry([
    Part.Circle(V(-58.2, -10.7, 0), V(0, 0, 1), 2),
    Part.Circle(V(-45.2, -10.7, 0), V(0, 0, 1), 2),
], False)
sketch24.addConstraint([
    Sketcher.Constraint("Equal", 0, 1),
    Sketcher.Constraint("Horizontal", 0, 3, 1, 3),
    Sketcher.Constraint("Diameter", 0, Q("4 mm")),
    Sketcher.Constraint("DistanceX", 0, 3, 1, 3, Q("13 mm")),
    Sketcher.Constraint("DistanceY", 0, 3, -1, 1, Q("10.7 mm")),
    Sketcher.Constraint("DistanceX", 0, 3, -1, 1, Q("58.18705 mm")),
])
pocket15 = body.newObject("PartDesign::Pocket", "Pocket014")
pocket15.Profile = sketch24
pocket15.Length = 16
pocket15.Reversed = True

sketch25 = body.newObject("Sketcher::SketchObject", "Sketch024")
sketch25.AttachmentSupport = (doc.getObject("YZ_Plane"), [""])
sketch25.MapMode = "FlatFace"
sketch25.AttachmentOffset = App.Placement(V(0, 0, -36.18705), App.Rotation())
sketch25.addGeometry([
    Part.LineSegment(V(19, -21, 0), V(6, -5, 0)),
    Part.LineSegment(V(6, -5, 0), V(6, -21, 0)),
    Part.LineSegment(V(6, -21, 0), V(19, -21, 0)),
], False)
sketch25.addConstraint([
    Sketcher.Constraint("Coincident", 0, 2, 1, 1),
    Sketcher.Constraint("Coincident", 1, 2, 2, 1),
    Sketcher.Constraint("Coincident", 2, 2, 0, 1),
    Sketcher.Constraint("Vertical", 1),
    Sketcher.Constraint("Horizontal", 2),
    Sketcher.Constraint("DistanceY", 1, 2, 1, 1, Q("16 mm")),
    Sketcher.Constraint("DistanceY", 0, 2, -1, 1, Q("4.7 mm")),
    Sketcher.Constraint("DistanceX", 2, 1, 2, 2, Q("12.750084 mm")),
    Sketcher.Constraint("DistanceX", -1, 1, 2, 2, Q("18.878142 mm")),
])
pad10 = body.newObject("PartDesign::Pad", "Pad009")
pad10.Profile = sketch25
pad10.Length = 40
pad10.Reversed = True

sketch26 = body.newObject("Sketcher::SketchObject", "Sketch025")
sketch26.AttachmentSupport = (doc.getObject("XZ_Plane"), [""])
sketch26.MapMode = "FlatFace"
sketch26.AttachmentOffset = App.Placement(V(0, 0, -6.128058), App.Rotation())
sketch26.addGeometry([
    Part.Circle(V(-45.2, -10.7, 0), V(0, 0, 1), 3.5),
    Part.Circle(V(-58.2, -10.7, 0), V(0, 0, 1), 3.5),
], False)
sketch26.addConstraint([
    Sketcher.Constraint("Equal", 0, 1),
    Sketcher.Constraint("Horizontal", 0, 3, 1, 3),
    Sketcher.Constraint("Diameter", 0, Q("7 mm")),
    Sketcher.Constraint("DistanceX", 1, 3, 0, 3, Q("13 mm")),
    Sketcher.Constraint("DistanceY", 0, 3, -1, 1, Q("10.7 mm")),
    Sketcher.Constraint("DistanceX", 0, 3, -1, 1, Q("45.18705 mm")),
])
pocket16 = body.newObject("PartDesign::Pocket", "Pocket015")
pocket16.Profile = sketch26
pocket16.Length = 16

sketch27 = body.newObject("Sketcher::SketchObject", "Sketch026")
sketch27.AttachmentSupport = (doc.getObject("YZ_Plane"), [""])
sketch27.MapMode = "FlatFace"
sketch27.AttachmentOffset = App.Placement(V(0, 0, -12.68705), App.Rotation())
sketch27.addGeometry([
    Part.LineSegment(V(65, 16, 0), V(0, 16, 0)),
    Part.LineSegment(V(0, 16, 0), V(0, 0, 0)),
    Part.LineSegment(V(0, 0, 0), V(65, 0, 0)),
    Part.LineSegment(V(65, 0, 0), V(65, 16, 0)),
], False)
sketch27.addConstraint([
    Sketcher.Constraint("Coincident", 0, 2, 1, 1),
    Sketcher.Constraint("Coincident", 1, 2, 2, 1),
    Sketcher.Constraint("Coincident", 2, 2, 3, 1),
    Sketcher.Constraint("Coincident", 3, 2, 0, 1),
    Sketcher.Constraint("Horizontal", 0),
    Sketcher.Constraint("Vertical", 1),
    Sketcher.Constraint("Horizontal", 2),
    Sketcher.Constraint("Vertical", 3),
    Sketcher.Constraint("PointOnObject", 1, 2, -1),
    Sketcher.Constraint("DistanceY", 1, 2, 1, 1, Q("16 mm")),
    Sketcher.Constraint("DistanceX", 0, 2, 0, 1, Q("64.8 mm")),
    Sketcher.Constraint("DistanceX", -1, 1, 0, 2, Q("0.128058 mm")),
])
pocket17 = body.newObject("PartDesign::Pocket", "Pocket016")
pocket17.Profile = sketch27
pocket17.Length = 76

sketch28 = body.newObject("Sketcher::SketchObject", "Sketch027")
sketch28.AttachmentSupport = (doc.getObject("YZ_Plane"), [""])
sketch28.MapMode = "FlatFace"
sketch28.AttachmentOffset = App.Placement(V(0, 0, -36.18705), App.Rotation())
sketch28.addGeometry([
    Part.LineSegment(V(65, 0, 0), V(59, 0, 0)),
    Part.LineSegment(V(59, 0, 0), V(59, -21, 0)),
    Part.LineSegment(V(59, -21, 0), V(65, -21, 0)),
    Part.LineSegment(V(65, -21, 0), V(65, 0, 0)),
], False)
sketch28.addConstraint([
    Sketcher.Constraint("Coincident", 0, 2, 1, 1),
    Sketcher.Constraint("Coincident", 1, 2, 2, 1),
    Sketcher.Constraint("Coincident", 2, 2, 3, 1),
    Sketcher.Constraint("Coincident", 3, 2, 0, 1),
    Sketcher.Constraint("Horizontal", 0),
    Sketcher.Constraint("Vertical", 1),
    Sketcher.Constraint("Horizontal", 2),
    Sketcher.Constraint("Vertical", 3),
    Sketcher.Constraint("PointOnObject", 0, 2, -1),
    Sketcher.Constraint("DistanceX", 0, 2, 0, 1, Q("6 mm")),
    Sketcher.Constraint("DistanceY", 1, 2, 1, 1, Q("20.7 mm")),
    Sketcher.Constraint("DistanceX", -1, 1, 0, 2, Q("58.928058 mm")),
])
pocket18 = body.newObject("PartDesign::Pocket", "Pocket017")
pocket18.Profile = sketch28
pocket18.Length = 76

sketch29 = body.newObject("Sketcher::SketchObject", "Sketch028")
sketch29.AttachmentSupport = (doc.getObject("XY_Plane"), [""])
sketch29.MapMode = "FlatFace"
sketch29.AttachmentOffset = App.Placement(V(0, 0, -4.7), App.Rotation())
sketch29.addGeometry([
    Part.LineSegment(V(-76, 73, 0), V(-76, 0, 0)),
    Part.LineSegment(V(-76, 0, 0), V(-66, 0, 0)),
    Part.LineSegment(V(-66, 0, 0), V(-66, 73, 0)),
    Part.LineSegment(V(-66, 73, 0), V(-76, 73, 0)),
], False)
sketch29.addConstraint([
    Sketcher.Constraint("Coincident", 0, 2, 1, 1),
    Sketcher.Constraint("Coincident", 1, 2, 2, 1),
    Sketcher.Constraint("Coincident", 2, 2, 3, 1),
    Sketcher.Constraint("Coincident", 3, 2, 0, 1),
    Sketcher.Constraint("Vertical", 0),
    Sketcher.Constraint("Horizontal", 1),
    Sketcher.Constraint("Vertical", 2),
    Sketcher.Constraint("Horizontal", 3),
    Sketcher.Constraint("DistanceX", 1, 1, 1, 2, Q("10.320989 mm")),
    Sketcher.Constraint("DistanceY", 0, 2, 0, 1, Q("73.075116 mm")),
    Sketcher.Constraint("DistanceX", 0, 2, -1, 1, Q("76.18705 mm")),
    Sketcher.Constraint("DistanceY", -1, 1, 0, 2, Q("0.128058 mm")),
])
pocket19 = body.newObject("PartDesign::Pocket", "Pocket018")
pocket19.Profile = sketch29
pocket19.Length = 30

sketch30 = body.newObject("Sketcher::SketchObject", "Sketch029")
sketch30.AttachmentSupport = (doc.getObject("XY_Plane"), [""])
sketch30.MapMode = "FlatFace"
sketch30.AttachmentOffset = App.Placement(V(0, 0, -4.7), App.Rotation())
sketch30.addGeometry([
    Part.LineSegment(V(-38.2, 70.9, 0), V(-38.2, 0.1, 0)),
    Part.LineSegment(V(-38.2, 0.1, 0), V(-36.2, 0.1, 0)),
    Part.LineSegment(V(-36.2, 0.1, 0), V(-36.2, 70.9, 0)),
    Part.LineSegment(V(-36.2, 70.9, 0), V(-38.2, 70.9, 0)),
], False)
sketch30.addConstraint([
    Sketcher.Constraint("Coincident", 0, 2, 1, 1),
    Sketcher.Constraint("Coincident", 1, 2, 2, 1),
    Sketcher.Constraint("Coincident", 2, 2, 3, 1),
    Sketcher.Constraint("Coincident", 3, 2, 0, 1),
    Sketcher.Constraint("Vertical", 0),
    Sketcher.Constraint("Horizontal", 1),
    Sketcher.Constraint("Vertical", 2),
    Sketcher.Constraint("Horizontal", 3),
    Sketcher.Constraint("DistanceX", 1, 1, 1, 2, Q("2 mm")),
    Sketcher.Constraint("DistanceY", 0, 2, 0, 1, Q("70.78323 mm")),
    Sketcher.Constraint("DistanceX", 0, 2, -1, 1, Q("38.18705 mm")),
    Sketcher.Constraint("DistanceY", -1, 1, 0, 2, Q("0.128058 mm")),
])
pocket20 = body.newObject("PartDesign::Pocket", "Pocket019")
pocket20.Profile = sketch30
pocket20.Length = 30

sketch31 = body.newObject("Sketcher::SketchObject", "Sketch030")
sketch31.AttachmentSupport = (doc.getObject("XY_Plane"), [""])
sketch31.MapMode = "FlatFace"
sketch31.AttachmentOffset = App.Placement(V(0, 0, -20.7), App.Rotation())
sketch31.addGeometry([
    Part.LineSegment(V(-66, 65, 0), V(-66, 50, 0)),
    Part.LineSegment(V(-66, 50, 0), V(-38, 50, 0)),
    Part.LineSegment(V(-38, 50, 0), V(-38, 65, 0)),
    Part.LineSegment(V(-38, 65, 0), V(-66, 65, 0)),
], False)
sketch31.addConstraint([
    Sketcher.Constraint("Coincident", 0, 2, 1, 1),
    Sketcher.Constraint("Coincident", 1, 2, 2, 1),
    Sketcher.Constraint("Coincident", 2, 2, 3, 1),
    Sketcher.Constraint("Coincident", 3, 2, 0, 1),
    Sketcher.Constraint("Vertical", 0),
    Sketcher.Constraint("Horizontal", 1),
    Sketcher.Constraint("Vertical", 2),
    Sketcher.Constraint("Horizontal", 3),
    Sketcher.Constraint("DistanceY", 0, 2, 0, 1, Q("15 mm")),
    Sketcher.Constraint("DistanceX", 1, 1, 1, 2, Q("27.679011 mm")),
    Sketcher.Constraint("DistanceX", 0, 2, -1, 1, Q("65.866061 mm")),
    Sketcher.Constraint("DistanceY", -1, 1, 0, 2, Q("49.928058 mm")),
])
pocket21 = body.newObject("PartDesign::Pocket", "Pocket020")
pocket21.Profile = sketch31
pocket21.Length = 30

sketch32 = body.newObject("Sketcher::SketchObject", "Sketch031")
sketch32.AttachmentSupport = (doc.getObject("XY_Plane"), [""])
sketch32.MapMode = "FlatFace"
sketch32.AttachmentOffset = App.Placement(V(0, 0, -4.7), App.Rotation())
sketch32.addGeometry([
    Part.LineSegment(V(-65.9, 2.7, 0), V(-65.9, 0.1, 0)),
    Part.LineSegment(V(-65.9, 0.1, 0), V(-38.2, 0.1, 0)),
    Part.LineSegment(V(-38.2, 0.1, 0), V(-38.2, 2.7, 0)),
    Part.LineSegment(V(-38.2, 2.7, 0), V(-65.9, 2.7, 0)),
], False)
sketch32.addConstraint([
    Sketcher.Constraint("Coincident", 0, 2, 1, 1),
    Sketcher.Constraint("Coincident", 1, 2, 2, 1),
    Sketcher.Constraint("Coincident", 2, 2, 3, 1),
    Sketcher.Constraint("Coincident", 3, 2, 0, 1),
    Sketcher.Constraint("Vertical", 0),
    Sketcher.Constraint("Horizontal", 1),
    Sketcher.Constraint("Vertical", 2),
    Sketcher.Constraint("Horizontal", 3),
    Sketcher.Constraint("DistanceY", 0, 2, 0, 1, Q("2.54 mm")),
    Sketcher.Constraint("DistanceX", 1, 1, 1, 2, Q("27.679011 mm")),
    Sketcher.Constraint("DistanceX", 0, 2, -1, 1, Q("65.866061 mm")),
    Sketcher.Constraint("DistanceY", -1, 1, 0, 2, Q("0.128058 mm")),
])
pocket22 = body.newObject("PartDesign::Pocket", "Pocket021")
pocket22.Profile = sketch32
pocket22.Length = 110

sketch33 = body.newObject("Sketcher::SketchObject", "Sketch032")
sketch33.AttachmentSupport = (doc.getObject("XY_Plane"), [""])
sketch33.MapMode = "FlatFace"
sketch33.AttachmentOffset = App.Placement(V(0, 0, -20.7), App.Rotation())
sketch33.addGeometry(Part.Circle(V(-53, 37, 0), V(0, 0, 1), 11), False)
sketch33.addConstraint([
    Sketcher.Constraint("Diameter", 0, Q("22 mm")),
    Sketcher.Constraint("DistanceX", 0, 3, -1, 1, Q("53.18705 mm")),
    Sketcher.Constraint("DistanceY", -1, 1, 0, 3, Q("36.928058 mm")),
])
pocket23 = body.newObject("PartDesign::Pocket", "Pocket022")
pocket23.Profile = sketch33
pocket23.Length = 20

sketch34 = body.newObject("Sketcher::SketchObject", "Sketch033")
sketch34.AttachmentSupport = (doc.getObject("YZ_Plane"), [""])
sketch34.MapMode = "FlatFace"
sketch34.AttachmentOffset = App.Placement(V(0, 0, -65.866061), App.Rotation())
sketch34.addGeometry([
    Part.LineSegment(V(49.9, -20.7, 0), V(49.9, -27, 0)),
    Part.LineSegment(V(49.9, -27, 0), V(2.7, -27, 0)),
    Part.LineSegment(V(2.7, -27, 0), V(2.7, -4.7, 0)),
    Part.LineSegment(V(2.7, -4.7, 0), V(6.1, -4.7, 0)),
    Part.LineSegment(V(6.1, -4.7, 0), V(18.9, -20.7, 0)),
    Part.LineSegment(V(18.9, -20.7, 0), V(49.9, -20.7, 0)),
], False)
sketch34.addConstraint([
    Sketcher.Constraint("Coincident", 0, 2, 1, 1),
    Sketcher.Constraint("Coincident", 1, 2, 2, 1),
    Sketcher.Constraint("Coincident", 2, 2, 3, 1),
    Sketcher.Constraint("Coincident", 3, 2, 4, 1),
    Sketcher.Constraint("Coincident", 4, 2, 5, 1),
    Sketcher.Constraint("Coincident", 5, 2, 0, 1),
    Sketcher.Constraint("Vertical", 0),
    Sketcher.Constraint("Horizontal", 1),
    Sketcher.Constraint("Vertical", 2),
    Sketcher.Constraint("Horizontal", 3),
    Sketcher.Constraint("Horizontal", 5),
    Sketcher.Constraint("DistanceY", 0, 2, 0, 1, Q("6.3 mm")),
    Sketcher.Constraint("DistanceY", 2, 1, 2, 2, Q("22.3 mm")),
    Sketcher.Constraint("DistanceY", 0, 2, -1, 1, Q("27 mm")),
    Sketcher.Constraint("DistanceX", 1, 2, 1, 1, Q("47.26 mm")),
    Sketcher.Constraint("DistanceX", 3, 1, 3, 2, Q("3.46 mm")),
    Sketcher.Constraint("DistanceX", 5, 1, 5, 2, Q("31.049916 mm")),
    Sketcher.Constraint("DistanceX", -1, 1, 4, 2, Q("18.878142 mm")),
])
pad11 = body.newObject("PartDesign::Pad", "Pad010")
pad11.Profile = sketch34
pad11.Length = 2.3
pad11.Reversed = True

sketch35 = body.newObject("Sketcher::SketchObject", "Sketch034")
sketch35.AttachmentSupport = (doc.getObject("YZ_Plane"), [""])
sketch35.MapMode = "FlatFace"
sketch35.AttachmentOffset = App.Placement(V(0, 0, -68.166061), App.Rotation())
sketch35.addGeometry([
    Part.LineSegment(V(2.7, -4.7, 0), V(6.1, -4.7, 0)),
    Part.LineSegment(V(6.1, -4.7, 0), V(18.9, -20.7, 0)),
    Part.LineSegment(V(18.9, -20.7, 0), V(2.7, -20.7, 0)),
    Part.LineSegment(V(2.7, -20.7, 0), V(2.7, -4.7, 0)),
], False)
sketch35.addConstraint([
    Sketcher.Constraint("Coincident", 0, 2, 1, 1),
    Sketcher.Constraint("Coincident", 1, 2, 2, 1),
    Sketcher.Constraint("Coincident", 2, 2, 3, 1),
    Sketcher.Constraint("Coincident", 3, 2, 0, 1),
    Sketcher.Constraint("Horizontal", 0),
    Sketcher.Constraint("Horizontal", 2),
    Sketcher.Constraint("Vertical", 3),
    Sketcher.Constraint("DistanceY", 3, 1, 3, 2, Q("16 mm")),
    Sketcher.Constraint("DistanceX", 0, 1, 0, 2, Q("3.46 mm")),
    Sketcher.Constraint("DistanceY", 0, 2, -1, 1, Q("4.7 mm")),
    Sketcher.Constraint("DistanceX", 2, 2, 2, 1, Q("16.210084 mm")),
    Sketcher.Constraint("DistanceX", -1, 1, 1, 2, Q("18.878142 mm")),
])
pocket24 = body.newObject("PartDesign::Pocket", "Pocket023")
pocket24.Profile = sketch35
pocket24.Length = 50
pocket24.Reversed = True

sketch36 = body.newObject("Sketcher::SketchObject", "Sketch035")
sketch36.AttachmentSupport = (doc.getObject("XY_Plane"), [""])
sketch36.MapMode = "FlatFace"
sketch36.AttachmentOffset = App.Placement(V(0, 0, -27), App.Rotation())
sketch36.addGeometry([
    Part.LineSegment(V(-38.2, 6.7, 0), V(-38.2, 2.7, 0)),
    Part.LineSegment(V(-38.2, 2.7, 0), V(-68.2, 2.7, 0)),
    Part.LineSegment(V(-68.2, 2.7, 0), V(-68.2, 6.7, 0)),
    Part.LineSegment(V(-68.2, 6.7, 0), V(-38.2, 6.7, 0)),
], False)
sketch36.addConstraint([
    Sketcher.Constraint("Coincident", 0, 2, 1, 1),
    Sketcher.Constraint("Coincident", 1, 2, 2, 1),
    Sketcher.Constraint("Coincident", 2, 2, 3, 1),
    Sketcher.Constraint("Coincident", 3, 2, 0, 1),
    Sketcher.Constraint("Vertical", 0),
    Sketcher.Constraint("Horizontal", 1),
    Sketcher.Constraint("Vertical", 2),
    Sketcher.Constraint("Horizontal", 3),
    Sketcher.Constraint("DistanceY", 0, 2, 0, 1, Q("4 mm")),
    Sketcher.Constraint("DistanceX", 1, 2, 1, 1, Q("29.979011 mm")),
    Sketcher.Constraint("DistanceX", 0, 2, -1, 1, Q("38.18705 mm")),
    Sketcher.Constraint("DistanceY", -1, 1, 0, 2, Q("2.668058 mm")),
])
pad12 = body.newObject("PartDesign::Pad", "Pad011")
pad12.Profile = sketch36
pad12.Length = 10
pad12.Reversed = True

sketch37 = body.newObject("Sketcher::SketchObject", "Sketch036")
sketch37.AttachmentSupport = (doc.getObject("XZ_Plane"), [""])
sketch37.MapMode = "FlatFace"
sketch37.AttachmentOffset = App.Placement(V(0, 0, -6.668058), App.Rotation())
sketch37.addGeometry([
    Part.Circle(V(-45.2, -32, 0), V(0, 0, 1), 2),
    Part.Circle(V(-61.2, -32, 0), V(0, 0, 1), 2),
], False)
sketch37.addConstraint([
    Sketcher.Constraint("Equal", 0, 1),
    Sketcher.Constraint("Horizontal", 0, 3, 1, 3),
    Sketcher.Constraint("Diameter", 0, Q("4 mm")),
    Sketcher.Constraint("DistanceY", 0, 3, -1, 1, Q("32 mm")),
    Sketcher.Constraint("DistanceX", 0, 3, -1, 1, Q("45.18705 mm")),
    Sketcher.Constraint("DistanceX", 1, 3, -1, 1, Q("61.166061 mm")),
])
pocket25 = body.newObject("PartDesign::Pocket", "Pocket024")
pocket25.Profile = sketch37
pocket25.Length = 10
pocket25.Reversed = True

sketch38 = body.newObject("Sketcher::SketchObject", "Sketch037")
sketch38.AttachmentSupport = (doc.getObject("YZ_Plane"), [""])
sketch38.MapMode = "FlatFace"
sketch38.AttachmentOffset = App.Placement(V(0, 0, -68.166061), App.Rotation())
sketch38.addGeometry([
    Part.LineSegment(V(7, -37, 0), V(7, -27, 0)),
    Part.LineSegment(V(7, -27, 0), V(16, -27, 0)),
    Part.LineSegment(V(16, -27, 0), V(7, -37, 0)),
], False)
sketch38.addConstraint([
    Sketcher.Constraint("Coincident", 0, 2, 1, 1),
    Sketcher.Constraint("Coincident", 1, 2, 2, 1),
    Sketcher.Constraint("Coincident", 2, 2, 0, 1),
    Sketcher.Constraint("Vertical", 0),
    Sketcher.Constraint("Horizontal", 1),
    Sketcher.Constraint("DistanceY", 0, 1, 0, 2, Q("10 mm")),
    Sketcher.Constraint("DistanceY", 0, 2, -1, 1, Q("27 mm")),
    Sketcher.Constraint("DistanceX", 1, 1, 1, 2, Q("9.127368 mm")),
    Sketcher.Constraint("DistanceX", -1, 1, 0, 2, Q("6.668058 mm")),
])
pad13 = body.newObject("PartDesign::Pad", "Pad012")
pad13.Profile = sketch38
pad13.Length = 29.979011

sketch39 = body.newObject("Sketcher::SketchObject", "Sketch038")
sketch39.AttachmentSupport = (doc.getObject("XZ_Plane"), [""])
sketch39.MapMode = "FlatFace"
sketch39.AttachmentOffset = App.Placement(V(0, 0, -6.668058), App.Rotation())
sketch39.addGeometry([
    Part.Circle(V(-61.2, -32, 0), V(0, 0, 1), 3.5),
    Part.Circle(V(-45.2, -32, 0), V(0, 0, 1), 3.5),
], False)
sketch39.addConstraint([
    Sketcher.Constraint("Equal", 0, 1),
    Sketcher.Constraint("Horizontal", 0, 3, 1, 3),
    Sketcher.Constraint("Diameter", 0, Q("7 mm")),
    Sketcher.Constraint("DistanceY", 0, 3, -1, 1, Q("32 mm")),
    Sketcher.Constraint("DistanceX", 0, 3, -1, 1, Q("61.166061 mm")),
    Sketcher.Constraint("DistanceX", 1, 3, -1, 1, Q("45.18705 mm")),
])
pocket26 = body.newObject("PartDesign::Pocket", "Pocket025")
pocket26.Profile = sketch39
pocket26.Length = 10

doc.recompute()
